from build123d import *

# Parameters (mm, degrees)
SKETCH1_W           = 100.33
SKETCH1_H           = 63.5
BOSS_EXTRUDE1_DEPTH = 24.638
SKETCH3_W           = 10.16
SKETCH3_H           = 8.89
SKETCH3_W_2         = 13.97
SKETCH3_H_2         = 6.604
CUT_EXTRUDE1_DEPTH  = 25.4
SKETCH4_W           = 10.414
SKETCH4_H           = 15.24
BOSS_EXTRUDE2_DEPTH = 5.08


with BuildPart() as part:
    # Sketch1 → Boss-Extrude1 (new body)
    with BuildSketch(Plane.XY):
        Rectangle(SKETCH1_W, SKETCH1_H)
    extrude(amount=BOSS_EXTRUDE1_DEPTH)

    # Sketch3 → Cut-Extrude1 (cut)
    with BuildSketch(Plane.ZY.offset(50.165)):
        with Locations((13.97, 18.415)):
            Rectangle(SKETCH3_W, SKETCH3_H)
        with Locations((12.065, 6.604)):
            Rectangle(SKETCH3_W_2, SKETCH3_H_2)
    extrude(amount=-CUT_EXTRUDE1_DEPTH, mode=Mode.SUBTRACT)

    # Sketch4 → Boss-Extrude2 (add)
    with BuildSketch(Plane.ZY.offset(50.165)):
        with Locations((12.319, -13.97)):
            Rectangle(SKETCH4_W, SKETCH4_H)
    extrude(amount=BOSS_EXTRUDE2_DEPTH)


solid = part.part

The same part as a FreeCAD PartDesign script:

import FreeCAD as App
import Part
import Sketcher
from FreeCAD import Vector
Q = App.Units.Quantity

doc = App.newDocument("Part")
params = doc.addObject("Spreadsheet::Sheet", "Params")
for row, (alias, value) in enumerate([
    ("sketch1_height", "2.5 in"),
    ("sketch1_width", "3.95 in"),
    ("pad1_length", "0.97 in"),
    ("sketch2_height", "0.4 in"),
    ("sketch2_width", "0.35 in"),
    ("sketch2_width2", "0.26 in"),
    ("sketch2_height2", "0.55 in"),
    ("pocket1_length", "1 in"),
    ("sketch3_width", "0.6 in"),
    ("sketch3_height", "0.41 in"),
    ("pad2_length", "0.2 in"),
], start=1):
    params.set(f"A{row}", alias)
    params.set(f"B{row}", "=" + value)
    params.setAlias(f"B{row}", alias)

body = doc.addObject("PartDesign::Body", "Body")

# Sketch on XY plane
sketch1 = doc.addObject("Sketcher::SketchObject", "Sketch")
body.addObject(sketch1)
sketch1.AttachmentSupport = (doc.XY_Plane, [""])
sketch1.MapMode = "FlatFace"
sketch1.addGeometry(Part.LineSegment(Vector(-50, 32, 0), Vector(-50, -32, 0)), False)
sketch1.addGeometry(Part.LineSegment(Vector(-50, -32, 0), Vector(50, -32, 0)), False)
sketch1.addGeometry(Part.LineSegment(Vector(50, -32, 0), Vector(50, 32, 0)), False)
sketch1.addGeometry(Part.LineSegment(Vector(50, 32, 0), Vector(-50, 32, 0)), False)
sketch1.addConstraint(Sketcher.Constraint("Coincident", 0, 2, 1, 1))
sketch1.addConstraint(Sketcher.Constraint("Coincident", 1, 2, 2, 1))
sketch1.addConstraint(Sketcher.Constraint("Coincident", 2, 2, 3, 1))
sketch1.addConstraint(Sketcher.Constraint("Coincident", 3, 2, 0, 1))
sketch1.addConstraint(Sketcher.Constraint("Vertical", 0))
sketch1.addConstraint(Sketcher.Constraint("Horizontal", 1))
sketch1.addConstraint(Sketcher.Constraint("Vertical", 2))
sketch1.addConstraint(Sketcher.Constraint("Horizontal", 3))
sketch1.addConstraint(Sketcher.Constraint("Symmetric", 0, 2, 2, 2, -1, 1))
sketch1.addConstraint(Sketcher.Constraint("DistanceY", 0, 2, 0, 1, Q("2.5 in")))
sketch1.addConstraint(Sketcher.Constraint("DistanceX", 1, 1, 1, 2, Q("3.95 in")))
sketch1.setExpression("Constraints[9]", "Params.sketch1_height")
sketch1.setExpression("Constraints[10]", "Params.sketch1_width")
pad1 = doc.addObject("PartDesign::Pad", "Pad")
body.addObject(pad1)
pad1.Profile = sketch1
pad1.setExpression("Length", "Params.pad1_length")

# Sketch on YZ plane
sketch2 = doc.addObject("Sketcher::SketchObject", "Sketch001")
body.addObject(sketch2)
sketch2.AttachmentSupport = (doc.YZ_Plane, [""])
sketch2.MapMode = "FlatFace"
sketch2.AttachmentOffset = App.Placement(Vector(0, 0, -1.975 * 25.4), App.Rotation())
sketch2.addGeometry(Part.LineSegment(Vector(23, 9, 0), Vector(14, 9, 0)), False)
sketch2.addGeometry(Part.LineSegment(Vector(14, 9, 0), Vector(14, 19, 0)), False)
sketch2.addGeometry(Part.LineSegment(Vector(14, 19, 0), Vector(23, 19, 0)), False)
sketch2.addGeometry(Part.LineSegment(Vector(23, 19, 0), Vector(23, 9, 0)), False)
sketch2.addGeometry(Part.LineSegment(Vector(10, 5, 0), Vector(3, 5, 0)), False)
sketch2.addGeometry(Part.LineSegment(Vector(3, 5, 0), Vector(3, 19, 0)), False)
sketch2.addGeometry(Part.LineSegment(Vector(3, 19, 0), Vector(10, 19, 0)), False)
sketch2.addGeometry(Part.LineSegment(Vector(10, 19, 0), Vector(10, 5, 0)), False)
sketch2.addConstraint(Sketcher.Constraint("Coincident", 0, 2, 1, 1))
sketch2.addConstraint(Sketcher.Constraint("Coincident", 1, 2, 2, 1))
sketch2.addConstraint(Sketcher.Constraint("Coincident", 2, 2, 3, 1))
sketch2.addConstraint(Sketcher.Constraint("Coincident", 3, 2, 0, 1))
sketch2.addConstraint(Sketcher.Constraint("Coincident", 4, 2, 5, 1))
sketch2.addConstraint(Sketcher.Constraint("Coincident", 5, 2, 6, 1))
sketch2.addConstraint(Sketcher.Constraint("Coincident", 6, 2, 7, 1))
sketch2.addConstraint(Sketcher.Constraint("Coincident", 7, 2, 4, 1))
sketch2.addConstraint(Sketcher.Constraint("Horizontal", 0))
sketch2.addConstraint(Sketcher.Constraint("Vertical", 1))
sketch2.addConstraint(Sketcher.Constraint("Horizontal", 2))
sketch2.addConstraint(Sketcher.Constraint("Vertical", 3))
sketch2.addConstraint(Sketcher.Constraint("Horizontal", 4))
sketch2.addConstraint(Sketcher.Constraint("Vertical", 5))
sketch2.addConstraint(Sketcher.Constraint("Horizontal", 6))
sketch2.addConstraint(Sketcher.Constraint("Vertical", 7))
sketch2.addConstraint(Sketcher.Constraint("Horizontal", 2, 2, 5, 2))
sketch2.addConstraint(Sketcher.Constraint("DistanceY", 1, 1, 1, 2, Q("0.4 in")))
sketch2.addConstraint(Sketcher.Constraint("DistanceX", 0, 2, 0, 1, Q("0.35 in")))
sketch2.addConstraint(Sketcher.Constraint("DistanceX", 4, 2, 4, 1, Q("0.26 in")))
sketch2.addConstraint(Sketcher.Constraint("DistanceY", 5, 1, 5, 2, Q("0.55 in")))
sketch2.addConstraint(Sketcher.Constraint("DistanceX", -1, 1, 2, 2, Q("0.9 in")))
sketch2.addConstraint(Sketcher.Constraint("DistanceY", -1, 1, 4, 2, Q("0.2 in")))
sketch2.addConstraint(Sketcher.Constraint("DistanceX", -1, 1, 4, 2, Q("0.13 in")))
sketch2.setExpression("Constraints[17]", "Params.sketch2_height")
sketch2.setExpression("Constraints[18]", "Params.sketch2_width")
sketch2.setExpression("Constraints[19]", "Params.sketch2_width2")
sketch2.setExpression("Constraints[20]", "Params.sketch2_height2")
pocket1 = doc.addObject("PartDesign::Pocket", "Pocket")
body.addObject(pocket1)
pocket1.Profile = sketch2
pocket1.setExpression("Length", "Params.pocket1_length")
pocket1.Reversed = True

# Sketch on YZ plane
sketch3 = doc.addObject("Sketcher::SketchObject", "Sketch002")
body.addObject(sketch3)
sketch3.AttachmentSupport = (doc.YZ_Plane, [""])
sketch3.MapMode = "FlatFace"
sketch3.AttachmentOffset = App.Placement(Vector(0, 0, -1.975 * 25.4), App.Rotation())
sketch3.addGeometry(Part.LineSegment(Vector(-6, 7, 0), Vector(-22, 7, 0)), False)
sketch3.addGeometry(Part.LineSegment(Vector(-22, 7, 0), Vector(-22, 18, 0)), False)
sketch3.addGeometry(Part.LineSegment(Vector(-22, 18, 0), Vector(-6, 18, 0)), False)
sketch3.addGeometry(Part.LineSegment(Vector(-6, 18, 0), Vector(-6, 7, 0)), False)
sketch3.addConstraint(Sketcher.Constraint("Coincident", 0, 2, 1, 1))
sketch3.addConstraint(Sketcher.Constraint("Coincident", 1, 2, 2, 1))
sketch3.addConstraint(Sketcher.Constraint("Coincident", 2, 2, 3, 1))
sketch3.addConstraint(Sketcher.Constraint("Coincident", 3, 2, 0, 1))
sketch3.addConstraint(Sketcher.Constraint("Horizontal", 0))
sketch3.addConstraint(Sketcher.Constraint("Vertical", 1))
sketch3.addConstraint(Sketcher.Constraint("Horizontal", 2))
sketch3.addConstraint(Sketcher.Constraint("Vertical", 3))
sketch3.addConstraint(Sketcher.Constraint("DistanceX", 0, 2, 0, 1, Q("0.6 in")))
sketch3.addConstraint(Sketcher.Constraint("DistanceY", 1, 1, 1, 2, Q("0.41 in")))
sketch3.addConstraint(Sketcher.Constraint("DistanceX", 0, 2, -1, 1, Q("0.85 in")))
sketch3.addConstraint(Sketcher.Constraint("DistanceY", -1, 1, 0, 2, Q("0.28 in")))
sketch3.setExpression("Constraints[8]", "Params.sketch3_width")
sketch3.setExpression("Constraints[9]", "Params.sketch3_height")
pad2 = doc.addObject("PartDesign::Pad", "Pad001")
body.addObject(pad2)
pad2.Profile = sketch3
pad2.setExpression("Length", "Params.pad2_length")
pad2.Reversed = True

doc.recompute()
